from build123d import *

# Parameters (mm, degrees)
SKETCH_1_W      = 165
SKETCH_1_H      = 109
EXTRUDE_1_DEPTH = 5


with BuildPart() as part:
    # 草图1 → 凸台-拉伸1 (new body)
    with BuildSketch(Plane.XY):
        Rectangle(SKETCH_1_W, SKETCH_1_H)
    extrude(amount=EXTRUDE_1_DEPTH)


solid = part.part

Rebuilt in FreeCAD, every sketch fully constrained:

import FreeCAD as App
import Part
import Sketcher

V = App.Vector
Q = App.Units.Quantity

doc = App.newDocument("Part")
body = doc.addObject("PartDesign::Body", "Body")

sketch1 = doc.addObject("Sketcher::SketchObject", "Sketch")
body.addObject(sketch1)
sketch1.AttachmentSupport = (doc.XY_Plane, [""])
sketch1.MapMode = "FlatFace"
sketch1.addGeometry([
    Part.LineSegment(V(-82, 54, 0), V(-82, -54, 0)),
    Part.LineSegment(V(-82, -54, 0), V(82, -54, 0)),
    Part.LineSegment(V(82, -54, 0), V(82, 54, 0)),
    Part.LineSegment(V(82, 54, 0), V(-82, 54, 0)),
], False)
sketch1.addConstraint([
    Sketcher.Constraint("Coincident", 0, 2, 1, 1),
    Sketcher.Constraint("Coincident", 1, 2, 2, 1),
    Sketcher.Constraint("Coincident", 2, 2, 3, 1),
    Sketcher.Constraint("Coincident", 3, 2, 0, 1),
    Sketcher.Constraint("Vertical", 0),
    Sketcher.Constraint("Horizontal", 1),
    Sketcher.Constraint("Vertical", 2),
    Sketcher.Constraint("Horizontal", 3),
    Sketcher.Constraint("Symmetric", 0, 2, 2, 2, -1, 1),
    Sketcher.Constraint("DistanceX", 1, 1, 1, 2, Q("165 mm")),
    Sketcher.Constraint("DistanceY", 0, 2, 0, 1, Q("109 mm")),
])
pad1 = doc.addObject("PartDesign::Pad", "Pad")
body.addObject(pad1)
pad1.Profile = sketch1
pad1.Length = 5

doc.recompute()
